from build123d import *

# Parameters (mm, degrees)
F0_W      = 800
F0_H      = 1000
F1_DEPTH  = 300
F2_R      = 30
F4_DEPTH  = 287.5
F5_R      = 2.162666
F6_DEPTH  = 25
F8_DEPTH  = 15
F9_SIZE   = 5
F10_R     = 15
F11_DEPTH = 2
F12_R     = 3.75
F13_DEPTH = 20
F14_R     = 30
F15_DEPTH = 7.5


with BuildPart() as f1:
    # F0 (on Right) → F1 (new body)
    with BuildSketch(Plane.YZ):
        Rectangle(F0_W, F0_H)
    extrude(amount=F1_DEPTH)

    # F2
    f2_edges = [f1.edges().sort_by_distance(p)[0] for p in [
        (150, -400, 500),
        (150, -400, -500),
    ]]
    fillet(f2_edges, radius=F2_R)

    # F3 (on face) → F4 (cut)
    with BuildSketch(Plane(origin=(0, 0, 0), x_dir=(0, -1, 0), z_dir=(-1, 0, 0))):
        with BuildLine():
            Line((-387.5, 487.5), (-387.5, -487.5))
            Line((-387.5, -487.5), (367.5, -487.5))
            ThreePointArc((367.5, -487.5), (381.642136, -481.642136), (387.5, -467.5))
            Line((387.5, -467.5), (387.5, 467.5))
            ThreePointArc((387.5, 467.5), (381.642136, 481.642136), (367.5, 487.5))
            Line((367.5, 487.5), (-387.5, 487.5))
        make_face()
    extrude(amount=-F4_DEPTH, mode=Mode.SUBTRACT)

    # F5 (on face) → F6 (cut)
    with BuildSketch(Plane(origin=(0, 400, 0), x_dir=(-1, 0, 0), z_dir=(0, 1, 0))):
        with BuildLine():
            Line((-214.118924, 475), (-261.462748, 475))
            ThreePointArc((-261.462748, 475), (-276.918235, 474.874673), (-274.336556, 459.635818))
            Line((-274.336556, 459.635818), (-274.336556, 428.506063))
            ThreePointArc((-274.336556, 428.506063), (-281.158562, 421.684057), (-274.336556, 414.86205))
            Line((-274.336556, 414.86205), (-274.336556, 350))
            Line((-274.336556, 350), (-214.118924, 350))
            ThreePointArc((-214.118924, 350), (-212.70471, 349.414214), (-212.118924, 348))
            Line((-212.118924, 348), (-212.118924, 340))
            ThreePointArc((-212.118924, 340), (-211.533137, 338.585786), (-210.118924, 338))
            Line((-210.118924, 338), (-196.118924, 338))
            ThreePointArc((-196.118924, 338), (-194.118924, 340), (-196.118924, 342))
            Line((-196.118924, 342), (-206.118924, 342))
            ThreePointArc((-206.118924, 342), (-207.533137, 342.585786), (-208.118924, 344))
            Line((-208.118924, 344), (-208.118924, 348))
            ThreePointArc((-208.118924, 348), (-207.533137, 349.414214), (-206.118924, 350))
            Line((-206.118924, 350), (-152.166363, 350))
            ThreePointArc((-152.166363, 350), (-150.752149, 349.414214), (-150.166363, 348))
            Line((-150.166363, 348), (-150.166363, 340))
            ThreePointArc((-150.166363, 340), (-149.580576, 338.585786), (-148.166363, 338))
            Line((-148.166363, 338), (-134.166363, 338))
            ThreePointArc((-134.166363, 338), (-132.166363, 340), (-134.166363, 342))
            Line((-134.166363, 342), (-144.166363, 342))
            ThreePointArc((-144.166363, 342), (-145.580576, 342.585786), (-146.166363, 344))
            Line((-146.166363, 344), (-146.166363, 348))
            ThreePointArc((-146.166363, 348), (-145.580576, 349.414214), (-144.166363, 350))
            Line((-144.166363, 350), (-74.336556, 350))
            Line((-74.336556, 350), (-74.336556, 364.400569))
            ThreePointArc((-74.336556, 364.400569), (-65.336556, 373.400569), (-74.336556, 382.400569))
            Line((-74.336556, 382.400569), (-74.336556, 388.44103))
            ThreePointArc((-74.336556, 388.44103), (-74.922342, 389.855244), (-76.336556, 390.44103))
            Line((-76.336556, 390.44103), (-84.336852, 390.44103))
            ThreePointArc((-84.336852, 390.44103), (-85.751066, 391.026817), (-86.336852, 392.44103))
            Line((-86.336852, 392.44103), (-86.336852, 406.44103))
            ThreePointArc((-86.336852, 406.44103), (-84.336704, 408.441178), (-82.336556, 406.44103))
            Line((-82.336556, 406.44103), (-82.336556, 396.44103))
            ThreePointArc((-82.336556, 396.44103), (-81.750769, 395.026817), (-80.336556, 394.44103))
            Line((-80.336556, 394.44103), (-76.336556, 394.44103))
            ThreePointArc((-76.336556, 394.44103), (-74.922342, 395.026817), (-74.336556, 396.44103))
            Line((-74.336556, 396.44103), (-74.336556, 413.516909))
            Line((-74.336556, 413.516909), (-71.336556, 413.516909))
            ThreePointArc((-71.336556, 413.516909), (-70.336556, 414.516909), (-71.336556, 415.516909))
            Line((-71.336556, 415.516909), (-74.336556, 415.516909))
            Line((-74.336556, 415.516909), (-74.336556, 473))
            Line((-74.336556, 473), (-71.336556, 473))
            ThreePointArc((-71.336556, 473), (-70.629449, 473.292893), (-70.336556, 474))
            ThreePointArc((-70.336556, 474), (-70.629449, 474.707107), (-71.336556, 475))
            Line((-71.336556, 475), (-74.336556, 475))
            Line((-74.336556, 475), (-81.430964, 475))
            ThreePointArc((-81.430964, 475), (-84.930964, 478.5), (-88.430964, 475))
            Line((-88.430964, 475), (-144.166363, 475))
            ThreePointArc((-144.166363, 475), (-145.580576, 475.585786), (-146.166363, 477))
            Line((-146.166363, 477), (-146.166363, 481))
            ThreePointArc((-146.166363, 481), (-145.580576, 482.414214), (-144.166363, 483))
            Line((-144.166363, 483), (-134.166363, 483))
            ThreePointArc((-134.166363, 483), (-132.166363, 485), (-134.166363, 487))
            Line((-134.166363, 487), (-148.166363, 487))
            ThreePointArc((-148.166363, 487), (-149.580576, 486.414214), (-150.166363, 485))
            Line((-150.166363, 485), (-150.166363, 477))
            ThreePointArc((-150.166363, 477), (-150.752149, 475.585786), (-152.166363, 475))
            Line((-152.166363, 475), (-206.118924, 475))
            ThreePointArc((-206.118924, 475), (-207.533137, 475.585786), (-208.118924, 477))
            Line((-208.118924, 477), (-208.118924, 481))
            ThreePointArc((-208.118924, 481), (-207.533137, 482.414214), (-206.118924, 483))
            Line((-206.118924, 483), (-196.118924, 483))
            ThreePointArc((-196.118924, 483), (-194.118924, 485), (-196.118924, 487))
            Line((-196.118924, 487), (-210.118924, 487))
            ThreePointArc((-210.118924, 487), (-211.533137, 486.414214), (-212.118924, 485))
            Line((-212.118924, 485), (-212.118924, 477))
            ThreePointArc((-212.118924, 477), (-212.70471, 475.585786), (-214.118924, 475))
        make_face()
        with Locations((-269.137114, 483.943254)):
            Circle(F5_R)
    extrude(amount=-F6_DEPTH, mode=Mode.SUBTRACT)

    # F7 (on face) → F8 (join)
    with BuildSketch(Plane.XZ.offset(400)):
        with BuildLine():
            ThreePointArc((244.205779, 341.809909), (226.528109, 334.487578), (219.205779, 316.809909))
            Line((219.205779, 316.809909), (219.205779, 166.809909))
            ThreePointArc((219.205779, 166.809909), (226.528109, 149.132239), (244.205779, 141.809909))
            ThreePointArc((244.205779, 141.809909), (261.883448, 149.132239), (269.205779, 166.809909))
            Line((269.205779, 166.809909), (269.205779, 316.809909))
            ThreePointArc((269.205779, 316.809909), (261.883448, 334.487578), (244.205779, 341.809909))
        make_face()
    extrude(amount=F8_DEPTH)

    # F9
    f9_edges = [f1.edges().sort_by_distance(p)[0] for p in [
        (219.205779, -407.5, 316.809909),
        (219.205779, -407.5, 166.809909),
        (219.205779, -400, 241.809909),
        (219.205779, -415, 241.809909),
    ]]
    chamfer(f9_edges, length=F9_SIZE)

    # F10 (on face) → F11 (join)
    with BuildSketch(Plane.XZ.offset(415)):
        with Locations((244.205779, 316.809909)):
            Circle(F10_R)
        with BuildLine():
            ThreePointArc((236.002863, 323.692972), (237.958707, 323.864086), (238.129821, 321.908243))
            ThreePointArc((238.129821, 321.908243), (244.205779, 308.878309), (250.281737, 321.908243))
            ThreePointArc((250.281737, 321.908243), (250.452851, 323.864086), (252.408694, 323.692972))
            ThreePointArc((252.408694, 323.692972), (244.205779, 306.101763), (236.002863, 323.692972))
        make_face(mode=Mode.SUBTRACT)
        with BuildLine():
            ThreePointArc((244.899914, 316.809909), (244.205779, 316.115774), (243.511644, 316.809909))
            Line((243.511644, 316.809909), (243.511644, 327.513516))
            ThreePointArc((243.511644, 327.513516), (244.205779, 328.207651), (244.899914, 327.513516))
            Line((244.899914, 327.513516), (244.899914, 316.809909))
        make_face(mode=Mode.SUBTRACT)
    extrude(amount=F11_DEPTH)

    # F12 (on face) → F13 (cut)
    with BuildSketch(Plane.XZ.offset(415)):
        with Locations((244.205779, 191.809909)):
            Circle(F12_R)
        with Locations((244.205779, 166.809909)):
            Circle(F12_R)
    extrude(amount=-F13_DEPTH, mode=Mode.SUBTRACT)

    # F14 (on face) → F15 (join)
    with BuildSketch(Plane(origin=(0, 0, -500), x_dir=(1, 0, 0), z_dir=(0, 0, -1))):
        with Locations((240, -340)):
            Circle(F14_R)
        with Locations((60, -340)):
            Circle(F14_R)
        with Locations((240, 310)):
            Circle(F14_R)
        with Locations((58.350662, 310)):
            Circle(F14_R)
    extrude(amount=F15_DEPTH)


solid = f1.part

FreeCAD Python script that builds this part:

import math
import FreeCAD as App
import Part
import Sketcher
from FreeCAD import Vector
Q = App.Units.Quantity


def edges_at(feature, points):
    """Names of the edges that pass closest to the given points."""
    edges = feature.Shape.Edges
    near = lambda p: min(range(len(edges)), key=lambda i: edges[i].distToShape(Part.Vertex(*p))[0])
    return sorted({f"Edge{near(p) + 1}" for p in points})

doc = App.newDocument("Part")
body = doc.addObject("PartDesign::Body", "Body")

# Sketch on YZ plane
sketch1 = body.newObject("Sketcher::SketchObject", "Sketch")
sketch1.AttachmentSupport = (doc.getObject("YZ_Plane"), [""])
sketch1.MapMode = "FlatFace"
sketch1.addGeometry([
    Part.LineSegment(Vector(-400, 500, 0), Vector(-400, -500, 0)),
    Part.LineSegment(Vector(-400, -500, 0), Vector(400, -500, 0)),
    Part.LineSegment(Vector(400, -500, 0), Vector(400, 500, 0)),
    Part.LineSegment(Vector(400, 500, 0), Vector(-400, 500, 0)),
], False)
sketch1.addConstraint([
    Sketcher.Constraint("Coincident", 0, 2, 1, 1),
    Sketcher.Constraint("Coincident", 1, 2, 2, 1),
    Sketcher.Constraint("Coincident", 2, 2, 3, 1),
    Sketcher.Constraint("Coincident", 3, 2, 0, 1),
    Sketcher.Constraint("Vertical", 0),
    Sketcher.Constraint("Horizontal", 1),
    Sketcher.Constraint("Vertical", 2),
    Sketcher.Constraint("Horizontal", 3),
    Sketcher.Constraint("Symmetric", 0, 2, 2, 2, -1, 1),
    Sketcher.Constraint("DistanceX", 1, 1, 1, 2, Q("800 mm")),
    Sketcher.Constraint("DistanceY", 0, 2, 0, 1, Q("1000 mm")),
])
pad1 = body.newObject("PartDesign::Pad", "Pad")
pad1.Profile = sketch1
pad1.Length = 300
doc.recompute()

fillet = body.newObject("PartDesign::Fillet", "Fillet")
fillet.Base = (pad1, edges_at(pad1, [(150, -400, 500), (150, -400, -500)]))
fillet.Radius = 30

# Sketch on YZ plane
sketch2 = body.newObject("Sketcher::SketchObject", "Sketch001")
sketch2.AttachmentSupport = (doc.getObject("YZ_Plane"), [""])
sketch2.MapMode = "FlatFace"
sketch2.addGeometry([
    Part.LineSegment(Vector(387.5, 487.5, 0), Vector(387.5, -487.5, 0)),  # 0
    Part.LineSegment(Vector(387.5, -487.5, 0), Vector(-367.5, -487.5, 0)),  # 1
    Part.ArcOfCircle(Part.Circle(Vector(-367.500001, -467.500001, 0), Vector(0, 0, 1), 19.999999), math.radians(179.999996), math.radians(270.000004)),  # 2
    Part.LineSegment(Vector(-387.5, -467.5, 0), Vector(-387.5, 467.5, 0)),  # 3
    Part.ArcOfCircle(Part.Circle(Vector(-367.500001, 467.500001, 0), Vector(0, 0, 1), 19.999999), math.radians(89.999996), math.radians(180.000004)),  # 4
    Part.LineSegment(Vector(-367.5, 487.5, 0), Vector(387.5, 487.5, 0)),  # 5
], False)
sketch2.addConstraint([
    Sketcher.Constraint("Coincident", 0, 2, 1, 1),
    Sketcher.Constraint("Tangent", 1, 2, 2, 2),
    Sketcher.Constraint("Tangent", 2, 1, 3, 1),
    Sketcher.Constraint("Tangent", 3, 2, 4, 2),
    Sketcher.Constraint("Tangent", 4, 1, 5, 1),
    Sketcher.Constraint("Coincident", 5, 2, 0, 1),
    Sketcher.Constraint("Vertical", 0),
    Sketcher.Constraint("Horizontal", 1),
    Sketcher.Constraint("Vertical", 3),
    Sketcher.Constraint("Horizontal", 5),
    Sketcher.Constraint("Equal", 2, 4),
    Sketcher.Constraint("Radius", 2, Q("19.999999 mm")),
    Sketcher.Constraint("DistanceX", 1, 2, 1, 1, Q("755 mm")),
    Sketcher.Constraint("DistanceY", 0, 2, 0, 1, Q("975 mm")),
    Sketcher.Constraint("DistanceX", 2, 3, -1, 1, Q("367.500001 mm")),
    Sketcher.Constraint("DistanceY", 2, 3, -1, 1, Q("467.500001 mm")),
])
pocket1 = body.newObject("PartDesign::Pocket", "Pocket")
pocket1.Profile = sketch2
pocket1.Length = 287.5
pocket1.Reversed = True

# Sketch on XZ plane
sketch3 = body.newObject("Sketcher::SketchObject", "Sketch002")
sketch3.AttachmentSupport = (doc.getObject("XZ_Plane"), [""])
sketch3.MapMode = "FlatFace"
sketch3.AttachmentOffset = App.Placement(Vector(0, 0, -400), App.Rotation())
sketch3.addGeometry([
    Part.LineSegment(Vector(214.118924, 475, 0), Vector(261.462748, 475, 0)),  # 0
    Part.ArcOfCircle(Part.Circle(Vector(269.137114, 468.354792, 0), Vector(0, 0, 1), 10.151586), math.radians(-59.190836), math.radians(139.110819)),  # 1
    Part.LineSegment(Vector(274.336556, 459.635818, 0), Vector(274.336556, 428.506063, 0)),  # 2
    Part.ArcOfCircle(Part.Circle(Vector(274.336555, 421.684056, 0), Vector(0, 0, 1), 6.822006), math.radians(-89.999996), math.radians(89.999996)),  # 3
    Part.LineSegment(Vector(274.336556, 414.86205, 0), Vector(274.336556, 350, 0)),  # 4
    Part.LineSegment(Vector(274.336556, 350, 0), Vector(214.118924, 350, 0)),  # 5
    Part.ArcOfCircle(Part.Circle(Vector(214.118923, 348.000001, 0), Vector(0, 0, 1), 1.999999), math.radians(89.999957), math.radians(180.000043)),  # 6
    Part.LineSegment(Vector(212.118924, 348, 0), Vector(212.118924, 340, 0)),  # 7
    Part.ArcOfCircle(Part.Circle(Vector(210.118924, 340, 0), Vector(0, 0, 1), 2), math.radians(-89.999994), math.radians(-0.000006)),  # 8
    Part.LineSegment(Vector(210.118924, 338, 0), Vector(196.118924, 338, 0)),  # 9
    Part.ArcOfCircle(Part.Circle(Vector(196.118924, 340, 0), Vector(0, 0, 1), 2), math.radians(90), math.radians(270)),  # 10
    Part.LineSegment(Vector(196.118924, 342, 0), Vector(206.118924, 342, 0)),  # 11
    Part.ArcOfCircle(Part.Circle(Vector(206.118924, 344, 0), Vector(0, 0, 1), 2), math.radians(-89.999994), math.radians(-0.000006)),  # 12
    Part.LineSegment(Vector(208.118924, 344, 0), Vector(208.118924, 348, 0)),  # 13
    Part.ArcOfCircle(Part.Circle(Vector(206.118924, 348, 0), Vector(0, 0, 1), 2), math.radians(0.000006), math.radians(89.999994)),  # 14
    Part.LineSegment(Vector(206.118924, 350, 0), Vector(152.166363, 350, 0)),  # 15
    Part.ArcOfCircle(Part.Circle(Vector(152.166362, 348.000001, 0), Vector(0, 0, 1), 1.999999), math.radians(89.999957), math.radians(180.000043)),  # 16
    Part.LineSegment(Vector(150.166363, 348, 0), Vector(150.166363, 340, 0)),  # 17
    Part.ArcOfCircle(Part.Circle(Vector(148.166363, 340, 0), Vector(0, 0, 1), 2), math.radians(-89.999994), math.radians(-0.000006)),  # 18
    Part.LineSegment(Vector(148.166363, 338, 0), Vector(134.166363, 338, 0)),  # 19
    Part.ArcOfCircle(Part.Circle(Vector(134.166363, 340, 0), Vector(0, 0, 1), 2), math.radians(90), math.radians(270)),  # 20
    Part.LineSegment(Vector(134.166363, 342, 0), Vector(144.166363, 342, 0)),  # 21
    Part.ArcOfCircle(Part.Circle(Vector(144.166363, 344, 0), Vector(0, 0, 1), 2), math.radians(-89.999994), math.radians(-0.000006)),  # 22
    Part.LineSegment(Vector(146.166363, 344, 0), Vector(146.166363, 348, 0)),  # 23
    Part.ArcOfCircle(Part.Circle(Vector(144.166363, 348, 0), Vector(0, 0, 1), 2), math.radians(0.000006), math.radians(89.999994)),  # 24
    Part.LineSegment(Vector(144.166363, 350, 0), Vector(74.336556, 350, 0)),  # 25
    Part.LineSegment(Vector(74.336556, 350, 0), Vector(74.336556, 364.400569, 0)),  # 26
    Part.ArcOfCircle(Part.Circle(Vector(74.336556, 373.400569, 0), Vector(0, 0, 1), 9), math.radians(90), math.radians(270)),  # 27
    Part.LineSegment(Vector(74.336556, 382.400569, 0), Vector(74.336556, 388.44103, 0)),  # 28
    Part.ArcOfCircle(Part.Circle(Vector(76.336555, 388.441031, 0), Vector(0, 0, 1), 1.999999), math.radians(89.999957), math.radians(180.000043)),  # 29
    Part.LineSegment(Vector(76.336556, 390.44103, 0), Vector(84.336852, 390.44103, 0)),  # 30
    Part.ArcOfCircle(Part.Circle(Vector(84.336852, 392.44103, 0), Vector(0, 0, 1), 2), math.radians(-89.999994), math.radians(-0.000006)),  # 31
    Part.LineSegment(Vector(86.336852, 392.44103, 0), Vector(86.336852, 406.44103, 0)),  # 32
    Part.ArcOfCircle(Part.Circle(Vector(84.336704, 406.44103, 0), Vector(0, 0, 1), 2.000148), math.radians(0), math.radians(180)),  # 33
    Part.LineSegment(Vector(82.336556, 406.44103, 0), Vector(82.336556, 396.44103, 0)),  # 34
    Part.ArcOfCircle(Part.Circle(Vector(80.336554, 396.441032, 0), Vector(0, 0, 1), 2.000002), math.radians(-89.999945), math.radians(-0.000055)),  # 35
    Part.LineSegment(Vector(80.336556, 394.44103, 0), Vector(76.336556, 394.44103, 0)),  # 36
    Part.ArcOfCircle(Part.Circle(Vector(76.336556, 396.44103, 0), Vector(0, 0, 1), 2), math.radians(-179.999994), math.radians(-90.000006)),  # 37
    Part.LineSegment(Vector(74.336556, 396.44103, 0), Vector(74.336556, 413.516909, 0)),  # 38
    Part.LineSegment(Vector(74.336556, 413.516909, 0), Vector(71.336556, 413.516909, 0)),  # 39
    Part.ArcOfCircle(Part.Circle(Vector(71.336556, 414.516909, 0), Vector(0, 0, 1), 1), math.radians(90), math.radians(270)),  # 40
    Part.LineSegment(Vector(71.336556, 415.516909, 0), Vector(74.336556, 415.516909, 0)),  # 41
    Part.LineSegment(Vector(74.336556, 415.516909, 0), Vector(74.336556, 473, 0)),  # 42
    Part.LineSegment(Vector(74.336556, 473, 0), Vector(71.336556, 473, 0)),  # 43
    Part.ArcOfCircle(Part.Circle(Vector(71.336555, 473.999999, 0), Vector(0, 0, 1), 0.999999), math.radians(179.999957), math.radians(270.000043)),  # 44
    Part.ArcOfCircle(Part.Circle(Vector(71.336555, 474.000001, 0), Vector(0, 0, 1), 0.999999), math.radians(89.999957), math.radians(180.000043)),  # 45
    Part.LineSegment(Vector(71.336556, 475, 0), Vector(81.430964, 475, 0)),  # 46
    Part.ArcOfCircle(Part.Circle(Vector(84.930964, 475, 0), Vector(0, 0, 1), 3.5), math.radians(0), math.radians(180)),  # 47
    Part.LineSegment(Vector(88.430964, 475, 0), Vector(144.166363, 475, 0)),  # 48
    Part.ArcOfCircle(Part.Circle(Vector(144.166363, 477, 0), Vector(0, 0, 1), 2), math.radians(-89.999994), math.radians(-0.000006)),  # 49
    Part.LineSegment(Vector(146.166363, 477, 0), Vector(146.166363, 481, 0)),  # 50
    Part.ArcOfCircle(Part.Circle(Vector(144.166363, 481, 0), Vector(0, 0, 1), 2), math.radians(0.000006), math.radians(89.999994)),  # 51
    Part.LineSegment(Vector(144.166363, 483, 0), Vector(134.166363, 483, 0)),  # 52
    Part.ArcOfCircle(Part.Circle(Vector(134.166363, 485, 0), Vector(0, 0, 1), 2), math.radians(90), math.radians(270)),  # 53
    Part.LineSegment(Vector(134.166363, 487, 0), Vector(148.166363, 487, 0)),  # 54
    Part.ArcOfCircle(Part.Circle(Vector(148.166363, 485, 0), Vector(0, 0, 1), 2), math.radians(0.000006), math.radians(89.999994)),  # 55
    Part.LineSegment(Vector(150.166363, 485, 0), Vector(150.166363, 477, 0)),  # 56
    Part.ArcOfCircle(Part.Circle(Vector(152.166362, 476.999999, 0), Vector(0, 0, 1), 1.999999), math.radians(179.999957), math.radians(270.000043)),  # 57
    Part.LineSegment(Vector(152.166363, 475, 0), Vector(206.118924, 475, 0)),  # 58
    Part.ArcOfCircle(Part.Circle(Vector(206.118924, 477, 0), Vector(0, 0, 1), 2), math.radians(-89.999994), math.radians(-0.000006)),  # 59
    Part.LineSegment(Vector(208.118924, 477, 0), Vector(208.118924, 481, 0)),  # 60
    Part.ArcOfCircle(Part.Circle(Vector(206.118924, 481, 0), Vector(0, 0, 1), 2), math.radians(0.000006), math.radians(89.999994)),  # 61
    Part.LineSegment(Vector(206.118924, 483, 0), Vector(196.118924, 483, 0)),  # 62
    Part.ArcOfCircle(Part.Circle(Vector(196.118924, 485, 0), Vector(0, 0, 1), 2), math.radians(90), math.radians(270)),  # 63
    Part.LineSegment(Vector(196.118924, 487, 0), Vector(210.118924, 487, 0)),  # 64
    Part.ArcOfCircle(Part.Circle(Vector(210.118924, 485, 0), Vector(0, 0, 1), 2), math.radians(0.000006), math.radians(89.999994)),  # 65
    Part.LineSegment(Vector(212.118924, 485, 0), Vector(212.118924, 477, 0)),  # 66
    Part.ArcOfCircle(Part.Circle(Vector(214.118923, 476.999999, 0), Vector(0, 0, 1), 1.999999), math.radians(179.999957), math.radians(270.000043)),  # 67
    Part.Circle(Vector(269.137114, 483.943254, 0), Vector(0, 0, 1), 2.162666),  # 68
], False)
sketch3.addConstraint([
    Sketcher.Constraint("Coincident", 0, 2, 1, 2),
    Sketcher.Constraint("Coincident", 1, 1, 2, 1),
    Sketcher.Constraint("Coincident", 2, 2, 3, 2),
    Sketcher.Constraint("Coincident", 3, 1, 4, 1),
    Sketcher.Constraint("Coincident", 4, 2, 5, 1),
    Sketcher.Constraint("Tangent", 5, 2, 6, 1),
    Sketcher.Constraint("Tangent", 6, 2, 7, 1),
    Sketcher.Constraint("Tangent", 7, 2, 8, 2),
    Sketcher.Constraint("Tangent", 8, 1, 9, 1),
    Sketcher.Constraint("Tangent", 9, 2, 10, 2),
    Sketcher.Constraint("Tangent", 10, 1, 11, 1),
    Sketcher.Constraint("Tangent", 11, 2, 12, 1),
    Sketcher.Constraint("Tangent", 12, 2, 13, 1),
    Sketcher.Constraint("Tangent", 13, 2, 14, 1),
    Sketcher.Constraint("Tangent", 14, 2, 15, 1),
    Sketcher.Constraint("Tangent", 15, 2, 16, 1),
    Sketcher.Constraint("Tangent", 16, 2, 17, 1),
    Sketcher.Constraint("Tangent", 17, 2, 18, 2),
    Sketcher.Constraint("Tangent", 18, 1, 19, 1),
    Sketcher.Constraint("Tangent", 19, 2, 20, 2),
    Sketcher.Constraint("Tangent", 20, 1, 21, 1),
    Sketcher.Constraint("Tangent", 21, 2, 22, 1),
    Sketcher.Constraint("Tangent", 22, 2, 23, 1),
    Sketcher.Constraint("Tangent", 23, 2, 24, 1),
    Sketcher.Constraint("Tangent", 24, 2, 25, 1),
    Sketcher.Constraint("Coincident", 25, 2, 26, 1),
    Sketcher.Constraint("Coincident", 26, 2, 27, 2),
    Sketcher.Constraint("Coincident", 27, 1, 28, 1),
    Sketcher.Constraint("Tangent", 28, 2, 29, 2),
    Sketcher.Constraint("Tangent", 29, 1, 30, 1),
    Sketcher.Constraint("Tangent", 30, 2, 31, 1),
    Sketcher.Constraint("Tangent", 31, 2, 32, 1),
    Sketcher.Constraint("Tangent", 32, 2, 33, 1),
    Sketcher.Constraint("Tangent", 33, 2, 34, 1),
    Sketcher.Constraint("Tangent", 34, 2, 35, 2),
    Sketcher.Constraint("Tangent", 35, 1, 36, 1),
    Sketcher.Constraint("Tangent", 36, 2, 37, 2),
    Sketcher.Constraint("Tangent", 37, 1, 38, 1),
    Sketcher.Constraint("Coincident", 38, 2, 39, 1),
    Sketcher.Constraint("Tangent", 39, 2, 40, 2),
    Sketcher.Constraint("Tangent", 40, 1, 41, 1),
    Sketcher.Constraint("Coincident", 41, 2, 42, 1),
    Sketcher.Constraint("Coincident", 42, 2, 43, 1),
    Sketcher.Constraint("Tangent", 43, 2, 44, 2),
    Sketcher.Constraint("Tangent", 44, 1, 45, 2),
    Sketcher.Constraint("Tangent", 45, 1, 46, 1),
    Sketcher.Constraint("Coincident", 46, 2, 47, 2),
    Sketcher.Constraint("Coincident", 47, 1, 48, 1),
    Sketcher.Constraint("Tangent", 48, 2, 49, 1),
    Sketcher.Constraint("Tangent", 49, 2, 50, 1),
    Sketcher.Constraint("Tangent", 50, 2, 51, 1),
    Sketcher.Constraint("Tangent", 51, 2, 52, 1),
    Sketcher.Constraint("Tangent", 52, 2, 53, 2),
    Sketcher.Constraint("Tangent", 53, 1, 54, 1),
    Sketcher.Constraint("Tangent", 54, 2, 55, 2),
    Sketcher.Constraint("Tangent", 55, 1, 56, 1),
    Sketcher.Constraint("Tangent", 56, 2, 57, 1),
    Sketcher.Constraint("Tangent", 57, 2, 58, 1),
    Sketcher.Constraint("Tangent", 58, 2, 59, 1),
    Sketcher.Constraint("Tangent", 59, 2, 60, 1),
    Sketcher.Constraint("Tangent", 60, 2, 61, 1),
    Sketcher.Constraint("Tangent", 61, 2, 62, 1),
    Sketcher.Constraint("Tangent", 62, 2, 63, 2),
    Sketcher.Constraint("Tangent", 63, 1, 64, 1),
    Sketcher.Constraint("Tangent", 64, 2, 65, 2),
    Sketcher.Constraint("Tangent", 65, 1, 66, 1),
    Sketcher.Constraint("Tangent", 66, 2, 67, 1),
    Sketcher.Constraint("Tangent", 67, 2, 0, 1),
    Sketcher.Constraint("Horizontal", 0),
    Sketcher.Constraint("Vertical", 2),
    Sketcher.Constraint("Vertical", 4),
    Sketcher.Constraint("Horizontal", 5),
    Sketcher.Constraint("Vertical", 7),
    Sketcher.Constraint("Horizontal", 9),
    Sketcher.Constraint("Horizontal", 11),
    Sketcher.Constraint("Vertical", 13),
    Sketcher.Constraint("Horizontal", 15),
    Sketcher.Constraint("Vertical", 17),
    Sketcher.Constraint("Horizontal", 19),
    Sketcher.Constraint("Horizontal", 21),
    Sketcher.Constraint("Vertical", 23),
    Sketcher.Constraint("Horizontal", 25),
    Sketcher.Constraint("Vertical", 26),
    Sketcher.Constraint("Vertical", 28),
    Sketcher.Constraint("Horizontal", 30),
    Sketcher.Constraint("Vertical", 32),
    Sketcher.Constraint("Vertical", 34),
    Sketcher.Constraint("Horizontal", 36),
    Sketcher.Constraint("Vertical", 38),
    Sketcher.Constraint("Horizontal", 39),
    Sketcher.Constraint("Horizontal", 41),
    Sketcher.Constraint("Vertical", 42),
    Sketcher.Constraint("Horizontal", 43),
    Sketcher.Constraint("Horizontal", 46),
    Sketcher.Constraint("Horizontal", 48),
    Sketcher.Constraint("Vertical", 50),
    Sketcher.Constraint("Horizontal", 52),
    Sketcher.Constraint("Horizontal", 54),
    Sketcher.Constraint("Vertical", 56),
    Sketcher.Constraint("Horizontal", 58),
    Sketcher.Constraint("Vertical", 60),
    Sketcher.Constraint("Horizontal", 62),
    Sketcher.Constraint("Horizontal", 64),
    Sketcher.Constraint("Vertical", 66),
    Sketcher.Constraint("Equal", 6, 8),
    Sketcher.Constraint("Equal", 8, 10),
    Sketcher.Constraint("Equal", 10, 12),
    Sketcher.Constraint("Equal", 12, 14),
    Sketcher.Constraint("Equal", 14, 16),
    Sketcher.Constraint("Equal", 16, 18),
    Sketcher.Constraint("Equal", 18, 20),
    Sketcher.Constraint("Equal", 20, 22),
    Sketcher.Constraint("Equal", 22, 24),
    Sketcher.Constraint("Equal", 24, 29),
    Sketcher.Constraint("Equal", 29, 31),
    Sketcher.Constraint("Equal", 31, 35),
    Sketcher.Constraint("Equal", 35, 37),
    Sketcher.Constraint("Equal", 40, 44),
    Sketcher.Constraint("Equal", 44, 45),
    Sketcher.Constraint("Equal", 37, 49),
    Sketcher.Constraint("Equal", 49, 51),
    Sketcher.Constraint("Equal", 51, 53),
    Sketcher.Constraint("Equal", 53, 55),
    Sketcher.Constraint("Equal", 55, 57),
    Sketcher.Constraint("Equal", 57, 59),
    Sketcher.Constraint("Equal", 59, 61),
    Sketcher.Constraint("Equal", 61, 63),
    Sketcher.Constraint("Equal", 63, 65),
    Sketcher.Constraint("Equal", 65, 67),
    Sketcher.Constraint("Horizontal", 6, 3, 14, 3),
    Sketcher.Constraint("Horizontal", 10, 3, 18, 3),
    Sketcher.Constraint("Horizontal", 16, 3, 24, 3),
    Sketcher.Constraint("Horizontal", 49, 3, 57, 3),
    Sketcher.Constraint("Horizontal", 51, 3, 61, 3),
    Sketcher.Constraint("Horizontal", 59, 3, 67, 3),
    Sketcher.Constraint("Horizontal", 47, 3, 0, 2),
    Sketcher.Constraint("Horizontal", 45, 3, 44, 1),
    Sketcher.Constraint("Horizontal", 0, 2, 45, 1),
    Sketcher.Constraint("Vertical", 29, 3, 37, 3),
    Sketcher.Constraint("Vertical", 40, 3, 44, 3),
    Sketcher.Constraint("Vertical", 24, 3, 49, 3),
    Sketcher.Constraint("Vertical", 20, 3, 53, 3),
    Sketcher.Constraint("Vertical", 18, 3, 55, 3),
    Sketcher.Constraint("Vertical", 14, 3, 59, 3),
    Sketcher.Constraint("Vertical", 10, 3, 63, 3),
    Sketcher.Constraint("Vertical", 8, 3, 65, 3),
    Sketcher.Constraint("Vertical", 1, 3, 68, 3),
    Sketcher.Constraint("Vertical", 3, 3, 1, 1),
    Sketcher.Constraint("Vertical", 2, 2, 3, 1),
    Sketcher.Constraint("Vertical", 27, 3, 25, 2),
    Sketcher.Constraint("Vertical", 26, 2, 27, 1),
    Sketcher.Constraint("Vertical", 38, 2, 41, 2),
    Sketcher.Constraint("Equal", 9, 19),
    Sketcher.Constraint("Equal", 11, 21),
    Sketcher.Constraint("Equal", 36, 13),
    Sketcher.Constraint("Equal", 64, 32),
    Sketcher.Constraint("Equal", 62, 34),
    Sketcher.Constraint("Equal", 23, 50),
    Sketcher.Constraint("Radius", 6, Q("1.999999 mm")),
    Sketcher.Constraint("Radius", 27, Q("9 mm")),
    Sketcher.Constraint("Radius", 40, Q("1 mm")),
    Sketcher.Constraint("Radius", 47, Q("3.5 mm")),
    Sketcher.Constraint("DistanceX", 9, 2, 9, 1, Q("14 mm")),
    Sketcher.Constraint("DistanceX", 11, 1, 11, 2, Q("10 mm")),
    Sketcher.Constraint("DistanceX", 36, 2, 36, 1, Q("4 mm")),
    Sketcher.Constraint("DistanceX", 39, 2, 39, 1, Q("3 mm")),
    Sketcher.Constraint("DistanceY", -1, 1, 6, 3, Q("348.000001 mm")),
    Sketcher.Constraint("DistanceY", -1, 1, 44, 3, Q("473.999999 mm")),
    Sketcher.Constraint("Diameter", 68, Q("4.325332 mm")),
    Sketcher.Constraint("DistanceX", 48, 1, 48, 2, Q("55.735399 mm")),
    Sketcher.Constraint("Radius", 1, Q("10.151586 mm")),
    Sketcher.Constraint("Radius", 3, Q("6.822006 mm")),
    Sketcher.Constraint("Radius", 33, Q("2.000148 mm")),
    Sketcher.Constraint("DistanceX", 5, 2, 5, 1, Q("60.217632 mm")),
    Sketcher.Constraint("DistanceX", 15, 2, 15, 1, Q("53.952561 mm")),
    Sketcher.Constraint("DistanceX", 46, 1, 46, 2, Q("10.094408 mm")),
    Sketcher.Constraint("DistanceY", 4, 2, 4, 1, Q("64.86205 mm")),
    Sketcher.Constraint("DistanceY", 26, 1, 26, 2, Q("14.400569 mm")),
    Sketcher.Constraint("DistanceY", 28, 1, 28, 2, Q("6.040461 mm")),
    Sketcher.Constraint("DistanceY", 38, 1, 38, 2, Q("17.075879 mm")),
    Sketcher.Constraint("DistanceX", 0, 1, 0, 2, Q("47.343824 mm")),
    Sketcher.Constraint("DistanceY", 2, 2, 2, 1, Q("31.129755 mm")),
    Sketcher.Constraint("DistanceX", -1, 1, 16, 3, Q("152.166362 mm")),
    Sketcher.Constraint("DistanceY", -1, 1, 68, 3, Q("483.943254 mm")),
])
pocket2 = body.newObject("PartDesign::Pocket", "Pocket001")
pocket2.Profile = sketch3
pocket2.Length = 25
pocket2.Reversed = True

# Sketch on XZ plane
sketch4 = body.newObject("Sketcher::SketchObject", "Sketch003")
sketch4.AttachmentSupport = (doc.getObject("XZ_Plane"), [""])
sketch4.MapMode = "FlatFace"
sketch4.AttachmentOffset = App.Placement(Vector(0, 0, 400), App.Rotation())
sketch4.addGeometry([
    Part.ArcOfCircle(Part.Circle(Vector(244.205779, 316.809909, 0), Vector(0, 0, 1), 25), math.radians(90), math.radians(180)),  # 0
    Part.LineSegment(Vector(219.205779, 316.809909, 0), Vector(219.205779, 166.809909, 0)),  # 1
    Part.ArcOfCircle(Part.Circle(Vector(244.205777, 166.809907, 0), Vector(0, 0, 1), 24.999998), math.radians(179.999996), math.radians(270.000004)),  # 2
    Part.ArcOfCircle(Part.Circle(Vector(244.205779, 166.809909, 0), Vector(0, 0, 1), 25), math.radians(-90), math.radians(0)),  # 3
    Part.LineSegment(Vector(269.205779, 166.809909, 0), Vector(269.205779, 316.809909, 0)),  # 4
    Part.ArcOfCircle(Part.Circle(Vector(244.205777, 316.809907, 0), Vector(0, 0, 1), 25.000002), math.radians(0.000004), math.radians(89.999996)),  # 5
], False)
sketch4.addConstraint([
    Sketcher.Constraint("Tangent", 0, 2, 1, 1),
    Sketcher.Constraint("Tangent", 1, 2, 2, 1),
    Sketcher.Constraint("Tangent", 2, 2, 3, 1),
    Sketcher.Constraint("Tangent", 3, 2, 4, 1),
    Sketcher.Constraint("Tangent", 4, 2, 5, 1),
    Sketcher.Constraint("Tangent", 5, 2, 0, 1),
    Sketcher.Constraint("Vertical", 1),
    Sketcher.Constraint("Vertical", 4),
    Sketcher.Constraint("Equal", 0, 2),
    Sketcher.Constraint("Equal", 2, 3),
    Sketcher.Constraint("Vertical", 5, 3, 2, 2),
    Sketcher.Constraint("Vertical", 2, 2, 5, 2),
    Sketcher.Constraint("Radius", 0, Q("25 mm")),
    Sketcher.Constraint("DistanceY", 1, 2, 1, 1, Q("150 mm")),
    Sketcher.Constraint("DistanceX", -1, 1, 0, 3, Q("244.205779 mm")),
    Sketcher.Constraint("DistanceY", -1, 1, 0, 3, Q("316.809909 mm")),
])
pad2 = body.newObject("PartDesign::Pad", "Pad001")
pad2.Profile = sketch4
pad2.Length = 15
doc.recompute()

chamfer = body.newObject("PartDesign::Chamfer", "Chamfer")
chamfer.Base = (pad2, edges_at(pad2, [
    (219.206, -407.5, 316.81),
    (219.206, -407.5, 166.81),
    (219.206, -400, 241.81),
    (219.206, -415, 241.81),
]))
chamfer.Size = 5

# Sketch on XZ plane
sketch5 = body.newObject("Sketcher::SketchObject", "Sketch004")
sketch5.AttachmentSupport = (doc.getObject("XZ_Plane"), [""])
sketch5.MapMode = "FlatFace"
sketch5.AttachmentOffset = App.Placement(Vector(0, 0, 415), App.Rotation())
sketch5.addGeometry([
    Part.Circle(Vector(244.205779, 316.809909, 0), Vector(0, 0, 1), 15),  # 0
    Part.ArcOfCircle(Part.Circle(Vector(244.205779, 316.809909, 0), Vector(0, 0, 1), 10.708146), math.radians(140), math.radians(400)),  # 1
    Part.ArcOfCircle(Part.Circle(Vector(237.066342, 322.800607, 0), Vector(0, 0, 1), 1.388273), math.radians(-39.999987), math.radians(140.000008)),  # 2
    Part.ArcOfCircle(Part.Circle(Vector(244.205779, 316.809909, 0), Vector(0, 0, 1), 7.9316), math.radians(140), math.radians(400)),  # 3
    Part.ArcOfCircle(Part.Circle(Vector(251.345215, 322.800608, 0), Vector(0, 0, 1), 1.388273), math.radians(40.000003), math.radians(220.000003)),  # 4
    Part.LineSegment(Vector(244.899914, 327.513516, 0), Vector(244.899914, 316.809909, 0)),  # 5
    Part.ArcOfCircle(Part.Circle(Vector(244.205779, 316.809909, 0), Vector(0, 0, 1), 0.694135), math.radians(180), math.radians(360)),  # 6
    Part.LineSegment(Vector(243.511644, 316.809909, 0), Vector(243.511644, 327.513516, 0)),  # 7
    Part.ArcOfCircle(Part.Circle(Vector(244.205779, 327.513516, 0), Vector(0, 0, 1), 0.694135), math.radians(0), math.radians(180)),  # 8
], False)
sketch5.addConstraint([
    Sketcher.Constraint("Tangent", 1, 1, 2, 2),
    Sketcher.Constraint("Tangent", 2, 1, 3, 1),
    Sketcher.Constraint("Tangent", 3, 2, 4, 2),
    Sketcher.Constraint("Tangent", 4, 1, 1, 2),
    Sketcher.Constraint("Tangent", 5, 2, 6, 2),
    Sketcher.Constraint("Tangent", 6, 1, 7, 1),
    Sketcher.Constraint("Tangent", 7, 2, 8, 2),
    Sketcher.Constraint("Tangent", 8, 1, 5, 1),
    Sketcher.Constraint("Vertical", 5),
    Sketcher.Constraint("Vertical", 7),
    Sketcher.Constraint("Coincident", 1, 3, 0, 3),
    Sketcher.Constraint("Coincident", 3, 3, 0, 3),
    Sketcher.Constraint("Coincident", 6, 3, 0, 3),
    Sketcher.Constraint("Horizontal", 2, 3, 4, 3),
    Sketcher.Constraint("Diameter", 0, Q("30 mm")),
    Sketcher.Constraint("Radius", 3, Q("7.9316 mm")),
    Sketcher.Constraint("Radius", 1, Q("10.708146 mm")),
    Sketcher.Constraint("Radius", 6, Q("0.694135 mm")),
    Sketcher.Constraint("DistanceY", 1, 3, 2, 3, Q("5.990699 mm")),
    Sketcher.Constraint("DistanceY", 5, 2, 5, 1, Q("10.703607 mm")),
    Sketcher.Constraint("DistanceX", -1, 1, 0, 3, Q("244.205779 mm")),
    Sketcher.Constraint("DistanceY", -1, 1, 0, 3, Q("316.809909 mm")),
])
pad3 = body.newObject("PartDesign::Pad", "Pad002")
pad3.Profile = sketch5
pad3.Length = 2

# Sketch on XZ plane
sketch6 = body.newObject("Sketcher::SketchObject", "Sketch005")
sketch6.AttachmentSupport = (doc.getObject("XZ_Plane"), [""])
sketch6.MapMode = "FlatFace"
sketch6.AttachmentOffset = App.Placement(Vector(0, 0, 415), App.Rotation())
sketch6.addGeometry([
    Part.Circle(Vector(244.205779, 191.809909, 0), Vector(0, 0, 1), 3.75),
    Part.Circle(Vector(244.205779, 166.809909, 0), Vector(0, 0, 1), 3.75),
], False)
sketch6.addConstraint([
    Sketcher.Constraint("Equal", 0, 1),
    Sketcher.Constraint("Vertical", 0, 3, 1, 3),
    Sketcher.Constraint("Diameter", 0, Q("7.5 mm")),
    Sketcher.Constraint("DistanceY", 1, 3, 0, 3, Q("25 mm")),
    Sketcher.Constraint("DistanceX", -1, 1, 0, 3, Q("244.205779 mm")),
    Sketcher.Constraint("DistanceY", -1, 1, 0, 3, Q("191.809909 mm")),
])
pocket3 = body.newObject("PartDesign::Pocket", "Pocket002")
pocket3.Profile = sketch6
pocket3.Length = 20

# Sketch on XY plane
sketch7 = body.newObject("Sketcher::SketchObject", "Sketch006")
sketch7.AttachmentSupport = (doc.getObject("XY_Plane"), [""])
sketch7.MapMode = "FlatFace"
sketch7.AttachmentOffset = App.Placement(Vector(0, 0, -500), App.Rotation())
sketch7.addGeometry([
    Part.Circle(Vector(240, 340, 0), Vector(0, 0, 1), 30),
    Part.Circle(Vector(60, 340, 0), Vector(0, 0, 1), 30),
    Part.Circle(Vector(240, -310, 0), Vector(0, 0, 1), 30),
    Part.Circle(Vector(58.350662, -310, 0), Vector(0, 0, 1), 30),
], False)
sketch7.addConstraint([
    Sketcher.Constraint("Equal", 0, 1),
    Sketcher.Constraint("Equal", 1, 2),
    Sketcher.Constraint("Equal", 2, 3),
    Sketcher.Constraint("Horizontal", 0, 3, 1, 3),
    Sketcher.Constraint("Horizontal", 2, 3, 3, 3),
    Sketcher.Constraint("Vertical", 0, 3, 2, 3),
    Sketcher.Constraint("Diameter", 0, Q("60 mm")),
    Sketcher.Constraint("DistanceX", -1, 1, 0, 3, Q("240 mm")),
    Sketcher.Constraint("DistanceY", -1, 1, 0, 3, Q("340 mm")),
    Sketcher.Constraint("DistanceX", -1, 1, 1, 3, Q("60 mm")),
    Sketcher.Constraint("DistanceY", 2, 3, -1, 1, Q("310 mm")),
    Sketcher.Constraint("DistanceX", 3, 3, 2, 3, Q("181.649338 mm")),
])
pad4 = body.newObject("PartDesign::Pad", "Pad003")
pad4.Profile = sketch7
pad4.Length = 7.5
pad4.Reversed = True

doc.recompute()
